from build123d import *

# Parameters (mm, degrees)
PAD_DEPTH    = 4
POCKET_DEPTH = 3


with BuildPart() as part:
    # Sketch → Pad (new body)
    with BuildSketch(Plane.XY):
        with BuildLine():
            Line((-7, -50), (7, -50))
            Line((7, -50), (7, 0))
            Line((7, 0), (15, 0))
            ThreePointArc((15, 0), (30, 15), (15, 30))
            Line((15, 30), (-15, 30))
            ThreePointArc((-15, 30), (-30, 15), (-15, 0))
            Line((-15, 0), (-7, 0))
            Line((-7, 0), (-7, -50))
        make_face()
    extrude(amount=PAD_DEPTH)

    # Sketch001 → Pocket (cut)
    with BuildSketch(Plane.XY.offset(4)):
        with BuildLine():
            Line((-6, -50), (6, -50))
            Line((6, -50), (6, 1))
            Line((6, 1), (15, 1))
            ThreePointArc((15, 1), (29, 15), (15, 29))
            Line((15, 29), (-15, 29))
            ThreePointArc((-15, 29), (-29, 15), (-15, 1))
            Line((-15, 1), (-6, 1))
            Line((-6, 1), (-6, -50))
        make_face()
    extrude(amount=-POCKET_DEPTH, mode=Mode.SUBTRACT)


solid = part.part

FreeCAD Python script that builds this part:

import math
import FreeCAD as App
import Part
import Sketcher
Q = App.Units.Quantity

doc = App.newDocument("Part")
params = doc.addObject("Spreadsheet::Sheet", "Params")
for row, (alias, value) in enumerate([
    ("sketch1_radius", "15 mm"),
    ("sketch1_width", "14 mm"),
    ("sketch1_width2", "8 mm"),
    ("sketch1_height", "50 mm"),
    ("pad1_length", "4 mm"),
    ("sketch2_radius", "14 mm"),
    ("sketch2_width", "12 mm"),
    ("sketch2_width2", "9 mm"),
    ("sketch2_height", "51 mm"),
    ("pocket1_length", "3 mm"),
], start=1):
    params.set(f"A{row}", alias)
    params.set(f"B{row}", "=" + value)
    params.setAlias(f"B{row}", alias)

body = doc.addObject("PartDesign::Body", "Body")

# Sketch on XY plane
sketch1 = doc.addObject("Sketcher::SketchObject", "Sketch")
body.addObject(sketch1)
sketch1.AttachmentSupport = (doc.XY_Plane, [""])
sketch1.MapMode = "FlatFace"
sketch1.addGeometry([
    Part.LineSegment(App.Vector(-7, -50, 0), App.Vector(7, -50, 0)),  # 0
    Part.LineSegment(App.Vector(7, -50, 0), App.Vector(7, 0, 0)),  # 1
    Part.LineSegment(App.Vector(7, 0, 0), App.Vector(15, 0, 0)),  # 2
    Part.ArcOfCircle(Part.Circle(App.Vector(15, 15, 0), App.Vector(0, 0, 1), 15), math.radians(-90), math.radians(90)),  # 3
    Part.LineSegment(App.Vector(15, 30, 0), App.Vector(-15, 30, 0)),  # 4
    Part.ArcOfCircle(Part.Circle(App.Vector(-15, 15, 0), App.Vector(0, 0, 1), 15), math.radians(90), math.radians(270)),  # 5
    Part.LineSegment(App.Vector(-15, 0, 0), App.Vector(-7, 0, 0)),  # 6
    Part.LineSegment(App.Vector(-7, 0, 0), App.Vector(-7, -50, 0)),  # 7
], False)
sketch1.addConstraint([
    Sketcher.Constraint("Coincident", 0, 2, 1, 1),
    Sketcher.Constraint("Coincident", 1, 2, 2, 1),
    Sketcher.Constraint("Tangent", 2, 2, 3, 1),
    Sketcher.Constraint("Tangent", 3, 2, 4, 1),
    Sketcher.Constraint("Tangent", 4, 2, 5, 1),
    Sketcher.Constraint("Tangent", 5, 2, 6, 1),
    Sketcher.Constraint("Coincident", 6, 2, 7, 1),
    Sketcher.Constraint("Coincident", 7, 2, 0, 1),
    Sketcher.Constraint("Horizontal", 0),
    Sketcher.Constraint("Vertical", 1),
    Sketcher.Constraint("Horizontal", 2),
    Sketcher.Constraint("Horizontal", 4),
    Sketcher.Constraint("Horizontal", 6),
    Sketcher.Constraint("Vertical", 7),
    Sketcher.Constraint("Equal", 3, 5),
    Sketcher.Constraint("Symmetric", 2, 2, 5, 2, -1, 1),
    Sketcher.Constraint("Equal", 2, 6),
    Sketcher.Constraint("Radius", 3, Q("15 mm")),
    Sketcher.Constraint("DistanceX", 0, 1, 0, 2, Q("14 mm")),
    Sketcher.Constraint("DistanceX", 2, 1, 2, 2, Q("8 mm")),
    Sketcher.Constraint("DistanceY", 1, 1, 1, 2, Q("50 mm")),
])
sketch1.setExpression("Constraints[17]", "Params.sketch1_radius")
sketch1.setExpression("Constraints[18]", "Params.sketch1_width")
sketch1.setExpression("Constraints[19]", "Params.sketch1_width2")
sketch1.setExpression("Constraints[20]", "Params.sketch1_height")
pad1 = doc.addObject("PartDesign::Pad", "Pad")
body.addObject(pad1)
pad1.Profile = sketch1
pad1.setExpression("Length", "Params.pad1_length")

# Sketch on XY plane
sketch2 = doc.addObject("Sketcher::SketchObject", "Sketch001")
body.addObject(sketch2)
sketch2.AttachmentSupport = (doc.XY_Plane, [""])
sketch2.MapMode = "FlatFace"
sketch2.AttachmentOffset = App.Placement(App.Vector(0, 0, 4), App.Rotation())
sketch2.addGeometry([
    Part.LineSegment(App.Vector(-6, -50, 0), App.Vector(6, -50, 0)),  # 0
    Part.LineSegment(App.Vector(6, -50, 0), App.Vector(6, 1, 0)),  # 1
    Part.LineSegment(App.Vector(6, 1, 0), App.Vector(15, 1, 0)),  # 2
    Part.ArcOfCircle(Part.Circle(App.Vector(15, 15, 0), App.Vector(0, 0, 1), 14), math.radians(-90), math.radians(90)),  # 3
    Part.LineSegment(App.Vector(15, 29, 0), App.Vector(-15, 29, 0)),  # 4
    Part.ArcOfCircle(Part.Circle(App.Vector(-15, 15, 0), App.Vector(0, 0, 1), 14), math.radians(90), math.radians(270)),  # 5
    Part.LineSegment(App.Vector(-15, 1, 0), App.Vector(-6, 1, 0)),  # 6
    Part.LineSegment(App.Vector(-6, 1, 0), App.Vector(-6, -50, 0)),  # 7
], False)
sketch2.addConstraint([
    Sketcher.Constraint("Coincident", 0, 2, 1, 1),
    Sketcher.Constraint("Coincident", 1, 2, 2, 1),
    Sketcher.Constraint("Tangent", 2, 2, 3, 1),
    Sketcher.Constraint("Tangent", 3, 2, 4, 1),
    Sketcher.Constraint("Tangent", 4, 2, 5, 1),
    Sketcher.Constraint("Tangent", 5, 2, 6, 1),
    Sketcher.Constraint("Coincident", 6, 2, 7, 1),
    Sketcher.Constraint("Coincident", 7, 2, 0, 1),
    Sketcher.Constraint("Horizontal", 0),
    Sketcher.Constraint("Vertical", 1),
    Sketcher.Constraint("Horizontal", 2),
    Sketcher.Constraint("Horizontal", 4),
    Sketcher.Constraint("Horizontal", 6),
    Sketcher.Constraint("Vertical", 7),
    Sketcher.Constraint("Equal", 3, 5),
    Sketcher.Constraint("Equal", 2, 6),
    Sketcher.Constraint("Radius", 3, Q("14 mm")),
    Sketcher.Constraint("DistanceX", 0, 1, 0, 2, Q("12 mm")),
    Sketcher.Constraint("DistanceX", 2, 1, 2, 2, Q("9 mm")),
    Sketcher.Constraint("DistanceY", 1, 1, 1, 2, Q("51 mm")),
    Sketcher.Constraint("DistanceX", -1, 1, 3, 3, Q("15 mm")),
    Sketcher.Constraint("DistanceY", -1, 1, 3, 3, Q("15 mm")),
])
sketch2.setExpression("Constraints[16]", "Params.sketch2_radius")
sketch2.setExpression("Constraints[17]", "Params.sketch2_width")
sketch2.setExpression("Constraints[18]", "Params.sketch2_width2")
sketch2.setExpression("Constraints[19]", "Params.sketch2_height")
pocket1 = doc.addObject("PartDesign::Pocket", "Pocket")
body.addObject(pocket1)
pocket1.Profile = sketch2
pocket1.setExpression("Length", "Params.pocket1_length")

doc.recompute()
